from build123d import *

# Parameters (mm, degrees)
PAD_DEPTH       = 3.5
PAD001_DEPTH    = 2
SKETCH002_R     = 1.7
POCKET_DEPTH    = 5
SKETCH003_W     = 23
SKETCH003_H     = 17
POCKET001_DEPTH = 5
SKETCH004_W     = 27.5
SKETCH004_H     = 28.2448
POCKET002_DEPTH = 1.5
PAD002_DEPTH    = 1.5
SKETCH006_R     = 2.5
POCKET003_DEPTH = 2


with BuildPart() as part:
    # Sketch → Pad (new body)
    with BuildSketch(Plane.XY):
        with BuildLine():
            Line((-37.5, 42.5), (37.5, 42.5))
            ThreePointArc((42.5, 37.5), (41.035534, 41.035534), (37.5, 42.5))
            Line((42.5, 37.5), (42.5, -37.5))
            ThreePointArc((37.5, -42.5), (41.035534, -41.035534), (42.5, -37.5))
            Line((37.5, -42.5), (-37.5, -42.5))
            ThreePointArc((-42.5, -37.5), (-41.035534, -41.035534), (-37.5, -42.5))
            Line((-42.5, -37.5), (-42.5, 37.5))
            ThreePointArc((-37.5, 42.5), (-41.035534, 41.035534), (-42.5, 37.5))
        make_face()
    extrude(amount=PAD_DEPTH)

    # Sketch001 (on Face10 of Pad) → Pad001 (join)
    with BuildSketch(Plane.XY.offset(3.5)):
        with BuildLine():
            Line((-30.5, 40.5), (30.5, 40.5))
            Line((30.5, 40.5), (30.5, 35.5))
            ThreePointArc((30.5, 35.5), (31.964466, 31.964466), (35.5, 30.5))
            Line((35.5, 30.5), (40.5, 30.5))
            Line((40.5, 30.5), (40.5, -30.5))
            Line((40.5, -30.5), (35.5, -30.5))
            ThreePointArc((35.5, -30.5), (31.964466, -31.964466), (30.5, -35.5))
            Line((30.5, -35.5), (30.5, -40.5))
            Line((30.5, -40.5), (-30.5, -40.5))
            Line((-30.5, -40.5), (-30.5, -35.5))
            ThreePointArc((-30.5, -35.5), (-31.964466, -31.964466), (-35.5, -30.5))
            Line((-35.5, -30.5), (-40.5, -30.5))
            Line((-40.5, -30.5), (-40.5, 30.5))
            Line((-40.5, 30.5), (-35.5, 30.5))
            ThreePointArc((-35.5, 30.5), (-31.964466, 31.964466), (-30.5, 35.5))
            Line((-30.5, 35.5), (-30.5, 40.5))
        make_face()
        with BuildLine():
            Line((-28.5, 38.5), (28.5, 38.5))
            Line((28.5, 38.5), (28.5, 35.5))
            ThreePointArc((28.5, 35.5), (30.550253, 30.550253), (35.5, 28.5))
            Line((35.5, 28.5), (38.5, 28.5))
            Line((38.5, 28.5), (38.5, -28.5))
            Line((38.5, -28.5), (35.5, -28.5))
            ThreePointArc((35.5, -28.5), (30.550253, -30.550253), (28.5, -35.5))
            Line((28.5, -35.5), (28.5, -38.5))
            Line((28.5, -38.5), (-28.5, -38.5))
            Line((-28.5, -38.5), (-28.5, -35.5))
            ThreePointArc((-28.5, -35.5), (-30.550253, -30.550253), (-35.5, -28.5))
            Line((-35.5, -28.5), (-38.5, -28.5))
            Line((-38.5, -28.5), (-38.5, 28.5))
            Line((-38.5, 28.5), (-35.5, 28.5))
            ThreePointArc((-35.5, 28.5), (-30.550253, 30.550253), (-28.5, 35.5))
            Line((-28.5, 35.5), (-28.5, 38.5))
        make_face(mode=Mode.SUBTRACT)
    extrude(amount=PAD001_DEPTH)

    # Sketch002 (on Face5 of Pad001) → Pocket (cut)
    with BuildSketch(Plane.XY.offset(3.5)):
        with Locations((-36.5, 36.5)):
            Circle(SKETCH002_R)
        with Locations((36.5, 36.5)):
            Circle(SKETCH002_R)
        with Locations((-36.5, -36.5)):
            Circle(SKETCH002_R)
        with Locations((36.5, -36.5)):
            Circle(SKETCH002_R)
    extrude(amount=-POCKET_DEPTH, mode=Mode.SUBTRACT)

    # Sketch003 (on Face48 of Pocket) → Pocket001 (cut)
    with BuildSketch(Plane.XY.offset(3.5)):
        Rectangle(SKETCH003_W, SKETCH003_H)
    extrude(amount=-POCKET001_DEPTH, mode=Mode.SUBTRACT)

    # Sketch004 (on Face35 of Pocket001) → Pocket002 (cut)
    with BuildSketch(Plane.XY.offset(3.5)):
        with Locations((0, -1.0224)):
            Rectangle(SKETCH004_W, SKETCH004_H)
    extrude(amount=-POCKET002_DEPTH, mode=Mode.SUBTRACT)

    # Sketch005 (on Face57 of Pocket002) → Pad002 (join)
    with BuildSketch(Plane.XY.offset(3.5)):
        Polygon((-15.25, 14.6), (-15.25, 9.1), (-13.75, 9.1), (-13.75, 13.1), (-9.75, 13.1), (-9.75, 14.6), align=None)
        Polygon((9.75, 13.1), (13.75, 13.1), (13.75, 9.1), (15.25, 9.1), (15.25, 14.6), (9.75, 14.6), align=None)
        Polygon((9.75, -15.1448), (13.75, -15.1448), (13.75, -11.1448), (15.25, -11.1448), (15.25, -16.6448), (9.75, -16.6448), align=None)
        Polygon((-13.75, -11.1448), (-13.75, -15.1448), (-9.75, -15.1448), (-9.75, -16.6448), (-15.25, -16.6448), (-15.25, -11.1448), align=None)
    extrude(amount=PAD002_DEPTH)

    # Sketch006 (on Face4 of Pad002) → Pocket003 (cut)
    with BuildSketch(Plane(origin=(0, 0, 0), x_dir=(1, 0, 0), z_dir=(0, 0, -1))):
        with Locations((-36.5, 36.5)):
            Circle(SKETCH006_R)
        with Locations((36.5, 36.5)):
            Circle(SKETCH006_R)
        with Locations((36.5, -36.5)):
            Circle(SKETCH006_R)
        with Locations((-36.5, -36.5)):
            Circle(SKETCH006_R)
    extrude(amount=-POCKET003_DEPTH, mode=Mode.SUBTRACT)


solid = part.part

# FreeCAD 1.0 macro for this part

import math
import FreeCAD as App
import Part
import Sketcher

V = App.Vector

doc = App.newDocument("Part")
params = doc.addObject("Spreadsheet::Sheet", "Params")
for row, (alias, value) in enumerate([
    ("sketch1_radius", "5 mm"),
    ("sketch1_width", "75 mm"),
    ("pad1_length", "3.5 mm"),
    ("sketch2_radius", "5 mm"),
    ("sketch2_radius2", "7.000002 mm"),
    ("sketch2_width", "61 mm"),
    ("sketch2_width2", "5 mm"),
    ("sketch2_width3", "3 mm"),
    ("pad2_length", "2 mm"),
    ("sketch3_diameter", "3.4 mm"),
    ("pocket1_length", "5 mm"),
    ("sketch4_width", "23 mm"),
    ("sketch4_height", "17 mm"),
    ("pocket2_length", "5 mm"),
    ("sketch5_width", "27.5 mm"),
    ("pocket3_length", "1.5 mm"),
    ("sketch6_width", "4 mm"),
    ("sketch6_width2", "1.5 mm"),
    ("pad3_length", "1.5 mm"),
    ("sketch7_diameter", "5 mm"),
    ("pocket4_length", "2 mm"),
], start=1):
    params.set(f"A{row}", alias)
    params.set(f"B{row}", "=" + value)
    params.setAlias(f"B{row}", alias)

body = doc.addObject("PartDesign::Body", "Body")

sketch1 = body.newObject("Sketcher::SketchObject", "Sketch")
sketch1.AttachmentSupport = (doc.getObject("XY_Plane"), [""])
sketch1.MapMode = "FlatFace"
sketch1.addGeometry(Part.LineSegment(V(37.5, 42.5, 0), V(-37.5, 42.5, 0)), False)
sketch1.addGeometry(Part.ArcOfCircle(Part.Circle(V(-37.5, 37.5, 0), V(0, 0, 1), 5), math.radians(90), math.radians(180)), False)
sketch1.addGeometry(Part.LineSegment(V(-42.5, 37.5, 0), V(-42.5, -37.5, 0)), False)
sketch1.addGeometry(Part.ArcOfCircle(Part.Circle(V(-37.5, -37.5, 0), V(0, 0, 1), 5), math.radians(180), math.radians(270)), False)
sketch1.addGeometry(Part.LineSegment(V(-37.5, -42.5, 0), V(37.5, -42.5, 0)), False)
sketch1.addGeometry(Part.ArcOfCircle(Part.Circle(V(37.5, -37.5, 0), V(0, 0, 1), 5), math.radians(-90), math.radians(0)), False)
sketch1.addGeometry(Part.LineSegment(V(42.5, -37.5, 0), V(42.5, 37.5, 0)), False)
sketch1.addGeometry(Part.ArcOfCircle(Part.Circle(V(37.5, 37.5, 0), V(0, 0, 1), 5), math.radians(0), math.radians(90)), False)
sketch1.addConstraint(Sketcher.Constraint("Tangent", 0, 2, 1, 1))
sketch1.addConstraint(Sketcher.Constraint("Tangent", 1, 2, 2, 1))
sketch1.addConstraint(Sketcher.Constraint("Tangent", 2, 2, 3, 1))
sketch1.addConstraint(Sketcher.Constraint("Tangent", 3, 2, 4, 1))
sketch1.addConstraint(Sketcher.Constraint("Tangent", 4, 2, 5, 1))
sketch1.addConstraint(Sketcher.Constraint("Tangent", 5, 2, 6, 1))
sketch1.addConstraint(Sketcher.Constraint("Tangent", 6, 2, 7, 1))
sketch1.addConstraint(Sketcher.Constraint("Tangent", 7, 2, 0, 1))
sketch1.addConstraint(Sketcher.Constraint("Horizontal", 0))
sketch1.addConstraint(Sketcher.Constraint("Vertical", 2))
sketch1.addConstraint(Sketcher.Constraint("Horizontal", 4))
sketch1.addConstraint(Sketcher.Constraint("Vertical", 6))
sketch1.addConstraint(Sketcher.Constraint("Equal", 1, 3))
sketch1.addConstraint(Sketcher.Constraint("Equal", 3, 5))
sketch1.addConstraint(Sketcher.Constraint("Equal", 5, 7))
sketch1.addConstraint(Sketcher.Constraint("Symmetric", 1, 3, 5, 3, -1, 1))
sketch1.addConstraint(Sketcher.Constraint("Equal", 4, 2))
sketch1.addConstraint(Sketcher.Constraint("Radius", 1, 5.0))
sketch1.addConstraint(Sketcher.Constraint("DistanceX", 0, 2, 0, 1, 75.0))
sketch1.setExpression("Constraints[17]", "Params.sketch1_radius")
sketch1.setExpression("Constraints[18]", "Params.sketch1_width")
pad1 = body.newObject("PartDesign::Pad", "Pad")
pad1.Profile = sketch1
pad1.setExpression("Length", "Params.pad1_length")

sketch2 = body.newObject("Sketcher::SketchObject", "Sketch001")
sketch2.AttachmentSupport = (doc.getObject("XY_Plane"), [""])
sketch2.MapMode = "FlatFace"
sketch2.AttachmentOffset = App.Placement(V(0, 0, 3.5), App.Rotation())
sketch2.addGeometry(Part.LineSegment(V(30.5, 40.5, 0), V(-30.5, 40.5, 0)), False)
sketch2.addGeometry(Part.LineSegment(V(-30.5, 40.5, 0), V(-30.5, 35.5, 0)), False)
sketch2.addGeometry(Part.ArcOfCircle(Part.Circle(V(-35.5, 35.5, 0), V(0, 0, 1), 5), math.radians(-90), math.radians(0)), False)
sketch2.addGeometry(Part.LineSegment(V(-35.5, 30.5, 0), V(-40.5, 30.5, 0)), False)
sketch2.addGeometry(Part.LineSegment(V(-40.5, 30.5, 0), V(-40.5, -30.5, 0)), False)
sketch2.addGeometry(Part.LineSegment(V(-40.5, -30.5, 0), V(-35.5, -30.5, 0)), False)
sketch2.addGeometry(Part.ArcOfCircle(Part.Circle(V(-35.5, -35.5, 0), V(0, 0, 1), 5), math.radians(0), math.radians(90)), False)
sketch2.addGeometry(Part.LineSegment(V(-30.5, -35.5, 0), V(-30.5, -40.5, 0)), False)
sketch2.addGeometry(Part.LineSegment(V(-30.5, -40.5, 0), V(30.5, -40.5, 0)), False)
sketch2.addGeometry(Part.LineSegment(V(30.5, -40.5, 0), V(30.5, -35.5, 0)), False)
sketch2.addGeometry(Part.ArcOfCircle(Part.Circle(V(35.5, -35.5, 0), V(0, 0, 1), 5), math.radians(90), math.radians(180)), False)
sketch2.addGeometry(Part.LineSegment(V(35.5, -30.5, 0), V(40.5, -30.5, 0)), False)
sketch2.addGeometry(Part.LineSegment(V(40.5, -30.5, 0), V(40.5, 30.5, 0)), False)
sketch2.addGeometry(Part.LineSegment(V(40.5, 30.5, 0), V(35.5, 30.5, 0)), False)
sketch2.addGeometry(Part.ArcOfCircle(Part.Circle(V(35.5, 35.5, 0), V(0, 0, 1), 5), math.radians(180), math.radians(270)), False)
sketch2.addGeometry(Part.LineSegment(V(30.5, 35.5, 0), V(30.5, 40.5, 0)), False)
sketch2.addGeometry(Part.LineSegment(V(-28.5, 38.5, 0), V(28.5, 38.5, 0)), False)
sketch2.addGeometry(Part.LineSegment(V(28.5, 38.5, 0), V(28.5, 35.5, 0)), False)
sketch2.addGeometry(Part.ArcOfCircle(Part.Circle(V(35.5, 35.5, 0), V(0, 0, 1), 7), math.radians(-180), math.radians(-90)), False)
sketch2.addGeometry(Part.LineSegment(V(35.5, 28.5, 0), V(38.5, 28.5, 0)), False)
sketch2.addGeometry(Part.LineSegment(V(38.5, 28.5, 0), V(38.5, -28.5, 0)), False)
sketch2.addGeometry(Part.LineSegment(V(38.5, -28.5, 0), V(35.5, -28.5, 0)), False)
sketch2.addGeometry(Part.ArcOfCircle(Part.Circle(V(35.5, -35.5, 0), V(0, 0, 1), 7), math.radians(90), math.radians(180)), False)
sketch2.addGeometry(Part.LineSegment(V(28.5, -35.5, 0), V(28.5, -38.5, 0)), False)
sketch2.addGeometry(Part.LineSegment(V(28.5, -38.5, 0), V(-28.5, -38.5, 0)), False)
sketch2.addGeometry(Part.LineSegment(V(-28.5, -38.5, 0), V(-28.5, -35.5, 0)), False)
sketch2.addGeometry(Part.ArcOfCircle(Part.Circle(V(-35.5, -35.5, 0), V(0, 0, 1), 7), math.radians(0), math.radians(90)), False)
sketch2.addGeometry(Part.LineSegment(V(-35.5, -28.5, 0), V(-38.5, -28.5, 0)), False)
sketch2.addGeometry(Part.LineSegment(V(-38.5, -28.5, 0), V(-38.5, 28.5, 0)), False)
sketch2.addGeometry(Part.LineSegment(V(-38.5, 28.5, 0), V(-35.5, 28.5, 0)), False)
sketch2.addGeometry(Part.ArcOfCircle(Part.Circle(V(-35.5, 35.5, 0), V(0, 0, 1), 7), math.radians(-90), math.radians(0)), False)
sketch2.addGeometry(Part.LineSegment(V(-28.5, 35.5, 0), V(-28.5, 38.5, 0)), False)
sketch2.addConstraint(Sketcher.Constraint("Coincident", 0, 2, 1, 1))
sketch2.addConstraint(Sketcher.Constraint("Tangent", 1, 2, 2, 2))
sketch2.addConstraint(Sketcher.Constraint("Tangent", 2, 1, 3, 1))
sketch2.addConstraint(Sketcher.Constraint("Coincident", 3, 2, 4, 1))
sketch2.addConstraint(Sketcher.Constraint("Coincident", 4, 2, 5, 1))
sketch2.addConstraint(Sketcher.Constraint("Tangent", 5, 2, 6, 2))
sketch2.addConstraint(Sketcher.Constraint("Tangent", 6, 1, 7, 1))
sketch2.addConstraint(Sketcher.Constraint("Coincident", 7, 2, 8, 1))
sketch2.addConstraint(Sketcher.Constraint("Coincident", 8, 2, 9, 1))
sketch2.addConstraint(Sketcher.Constraint("Tangent", 9, 2, 10, 2))
sketch2.addConstraint(Sketcher.Constraint("Tangent", 10, 1, 11, 1))
sketch2.addConstraint(Sketcher.Constraint("Coincident", 11, 2, 12, 1))
sketch2.addConstraint(Sketcher.Constraint("Coincident", 12, 2, 13, 1))
sketch2.addConstraint(Sketcher.Constraint("Tangent", 13, 2, 14, 2))
sketch2.addConstraint(Sketcher.Constraint("Tangent", 14, 1, 15, 1))
sketch2.addConstraint(Sketcher.Constraint("Coincident", 15, 2, 0, 1))
sketch2.addConstraint(Sketcher.Constraint("Coincident", 16, 2, 17, 1))
sketch2.addConstraint(Sketcher.Constraint("Tangent", 17, 2, 18, 1))
sketch2.addConstraint(Sketcher.Constraint("Tangent", 18, 2, 19, 1))
sketch2.addConstraint(Sketcher.Constraint("Coincident", 19, 2, 20, 1))
sketch2.addConstraint(Sketcher.Constraint("Coincident", 20, 2, 21, 1))
sketch2.addConstraint(Sketcher.Constraint("Tangent", 21, 2, 22, 1))
sketch2.addConstraint(Sketcher.Constraint("Tangent", 22, 2, 23, 1))
sketch2.addConstraint(Sketcher.Constraint("Coincident", 23, 2, 24, 1))
sketch2.addConstraint(Sketcher.Constraint("Coincident", 24, 2, 25, 1))
sketch2.addConstraint(Sketcher.Constraint("Tangent", 25, 2, 26, 1))
sketch2.addConstraint(Sketcher.Constraint("Tangent", 26, 2, 27, 1))
sketch2.addConstraint(Sketcher.Constraint("Coincident", 27, 2, 28, 1))
sketch2.addConstraint(Sketcher.Constraint("Coincident", 28, 2, 29, 1))
sketch2.addConstraint(Sketcher.Constraint("Tangent", 29, 2, 30, 1))
sketch2.addConstraint(Sketcher.Constraint("Tangent", 30, 2, 31, 1))
sketch2.addConstraint(Sketcher.Constraint("Coincident", 31, 2, 16, 1))
sketch2.addConstraint(Sketcher.Constraint("Horizontal", 0))
sketch2.addConstraint(Sketcher.Constraint("Vertical", 1))
sketch2.addConstraint(Sketcher.Constraint("Horizontal", 3))
sketch2.addConstraint(Sketcher.Constraint("Vertical", 4))
sketch2.addConstraint(Sketcher.Constraint("Horizontal", 5))
sketch2.addConstraint(Sketcher.Constraint("Vertical", 7))
sketch2.addConstraint(Sketcher.Constraint("Horizontal", 8))
sketch2.addConstraint(Sketcher.Constraint("Vertical", 9))
sketch2.addConstraint(Sketcher.Constraint("Horizontal", 11))
sketch2.addConstraint(Sketcher.Constraint("Vertical", 12))
sketch2.addConstraint(Sketcher.Constraint("Horizontal", 13))
sketch2.addConstraint(Sketcher.Constraint("Vertical", 15))
sketch2.addConstraint(Sketcher.Constraint("Horizontal", 16))
sketch2.addConstraint(Sketcher.Constraint("Vertical", 17))
sketch2.addConstraint(Sketcher.Constraint("Horizontal", 19))
sketch2.addConstraint(Sketcher.Constraint("Vertical", 20))
sketch2.addConstraint(Sketcher.Constraint("Horizontal", 21))
sketch2.addConstraint(Sketcher.Constraint("Vertical", 23))
sketch2.addConstraint(Sketcher.Constraint("Horizontal", 24))
sketch2.addConstraint(Sketcher.Constraint("Vertical", 25))
sketch2.addConstraint(Sketcher.Constraint("Horizontal", 27))
sketch2.addConstraint(Sketcher.Constraint("Vertical", 28))
sketch2.addConstraint(Sketcher.Constraint("Horizontal", 29))
sketch2.addConstraint(Sketcher.Constraint("Vertical", 31))
sketch2.addConstraint(Sketcher.Constraint("Coincident", 18, 3, 14, 3))
sketch2.addConstraint(Sketcher.Constraint("Coincident", 22, 3, 10, 3))
sketch2.addConstraint(Sketcher.Constraint("Coincident", 26, 3, 6, 3))
sketch2.addConstraint(Sketcher.Constraint("Coincident", 30, 3, 2, 3))
sketch2.addConstraint(Sketcher.Constraint("Equal", 2, 6))
sketch2.addConstraint(Sketcher.Constraint("Equal", 6, 10))
sketch2.addConstraint(Sketcher.Constraint("Equal", 10, 14))
sketch2.addConstraint(Sketcher.Constraint("Equal", 18, 22))
sketch2.addConstraint(Sketcher.Constraint("Equal", 22, 26))
sketch2.addConstraint(Sketcher.Constraint("Equal", 26, 30))
sketch2.addConstraint(Sketcher.Constraint("Symmetric", 2, 3, 10, 3, -1, 1))
sketch2.addConstraint(Sketcher.Constraint("Symmetric", 6, 3, 14, 3, -1, 1))
sketch2.addConstraint(Sketcher.Constraint("Symmetric", 6, 3, 10, 3, -2))
sketch2.addConstraint(Sketcher.Constraint("Equal", 5, 11))
sketch2.addConstraint(Sketcher.Constraint("Equal", 21, 27))
sketch2.addConstraint(Sketcher.Constraint("Equal", 13, 1))
sketch2.addConstraint(Sketcher.Constraint("Equal", 8, 4))
sketch2.addConstraint(Sketcher.Constraint("Equal", 1, 7))
sketch2.addConstraint(Sketcher.Constraint("Equal", 29, 17))
sketch2.addConstraint(Sketcher.Constraint("Equal", 17, 23))
sketch2.addConstraint(Sketcher.Constraint("Radius", 2, 5.0))
sketch2.addConstraint(Sketcher.Constraint("Radius", 18, 7.000002))
sketch2.addConstraint(Sketcher.Constraint("DistanceX", 0, 2, 0, 1, 61.0))
sketch2.addConstraint(Sketcher.Constraint("DistanceX", 3, 2, 3, 1, 5.0))
sketch2.addConstraint(Sketcher.Constraint("DistanceX", 19, 1, 19, 2, 3.0))
sketch2.setExpression("Constraints[76]", "Params.sketch2_radius")
sketch2.setExpression("Constraints[77]", "Params.sketch2_radius2")
sketch2.setExpression("Constraints[78]", "Params.sketch2_width")
sketch2.setExpression("Constraints[79]", "Params.sketch2_width2")
sketch2.setExpression("Constraints[80]", "Params.sketch2_width3")
pad2 = body.newObject("PartDesign::Pad", "Pad001")
pad2.Profile = sketch2
pad2.setExpression("Length", "Params.pad2_length")

sketch3 = body.newObject("Sketcher::SketchObject", "Sketch002")
sketch3.AttachmentSupport = (doc.getObject("XY_Plane"), [""])
sketch3.MapMode = "FlatFace"
sketch3.AttachmentOffset = App.Placement(V(0, 0, 3.5), App.Rotation())
sketch3.addGeometry(Part.Circle(V(-36.5, 36.5, 0), V(0, 0, 1), 1.7), False)
sketch3.addGeometry(Part.Circle(V(36.5, 36.5, 0), V(0, 0, 1), 1.7), False)
sketch3.addGeometry(Part.Circle(V(-36.5, -36.5, 0), V(0, 0, 1), 1.7), False)
sketch3.addGeometry(Part.Circle(V(36.5, -36.5, 0), V(0, 0, 1), 1.7), False)
sketch3.addConstraint(Sketcher.Constraint("Equal", 0, 1))
sketch3.addConstraint(Sketcher.Constraint("Equal", 1, 2))
sketch3.addConstraint(Sketcher.Constraint("Equal", 2, 3))
sketch3.addConstraint(Sketcher.Constraint("Symmetric", 1, 3, 2, 3, -1, 1))
sketch3.addConstraint(Sketcher.Constraint("Symmetric", 0, 3, 3, 3, -1, 1))
sketch3.addConstraint(Sketcher.Constraint("Symmetric", 0, 3, 1, 3, -2))
sketch3.addConstraint(Sketcher.Constraint("Diameter", 0, 3.4))
sketch3.addConstraint(Sketcher.Constraint("DistanceX", 0, 3, 1, 3, 73.0))
sketch3.addConstraint(Sketcher.Constraint("DistanceY", 2, 3, 0, 3, 73.0))
sketch3.setExpression("Constraints[6]", "Params.sketch3_diameter")
pocket1 = body.newObject("PartDesign::Pocket", "Pocket")
pocket1.Profile = sketch3
pocket1.setExpression("Length", "Params.pocket1_length")

sketch4 = body.newObject("Sketcher::SketchObject", "Sketch003")
sketch4.AttachmentSupport = (doc.getObject("XY_Plane"), [""])
sketch4.MapMode = "FlatFace"
sketch4.AttachmentOffset = App.Placement(V(0, 0, 3.5), App.Rotation())
sketch4.addGeometry(Part.LineSegment(V(-12, 8, 0), V(-12, -8, 0)), False)
sketch4.addGeometry(Part.LineSegment(V(-12, -8, 0), V(12, -8, 0)), False)
sketch4.addGeometry(Part.LineSegment(V(12, -8, 0), V(12, 8, 0)), False)
sketch4.addGeometry(Part.LineSegment(V(12, 8, 0), V(-12, 8, 0)), False)
sketch4.addConstraint(Sketcher.Constraint("Coincident", 0, 2, 1, 1))
sketch4.addConstraint(Sketcher.Constraint("Coincident", 1, 2, 2, 1))
sketch4.addConstraint(Sketcher.Constraint("Coincident", 2, 2, 3, 1))
sketch4.addConstraint(Sketcher.Constraint("Coincident", 3, 2, 0, 1))
sketch4.addConstraint(Sketcher.Constraint("Vertical", 0))
sketch4.addConstraint(Sketcher.Constraint("Horizontal", 1))
sketch4.addConstraint(Sketcher.Constraint("Vertical", 2))
sketch4.addConstraint(Sketcher.Constraint("Horizontal", 3))
sketch4.addConstraint(Sketcher.Constraint("Symmetric", 0, 2, 2, 2, -1, 1))
sketch4.addConstraint(Sketcher.Constraint("DistanceX", 1, 1, 1, 2, 23.0))
sketch4.addConstraint(Sketcher.Constraint("DistanceY", 0, 2, 0, 1, 17.0))
sketch4.setExpression("Constraints[9]", "Params.sketch4_width")
sketch4.setExpression("Constraints[10]", "Params.sketch4_height")
pocket2 = body.newObject("PartDesign::Pocket", "Pocket001")
pocket2.Profile = sketch4
pocket2.setExpression("Length", "Params.pocket2_length")

sketch5 = body.newObject("Sketcher::SketchObject", "Sketch004")
sketch5.AttachmentSupport = (doc.getObject("XY_Plane"), [""])
sketch5.MapMode = "FlatFace"
sketch5.AttachmentOffset = App.Placement(V(0, 0, 3.5), App.Rotation())
sketch5.addGeometry(Part.LineSegment(V(-14, 13, 0), V(-14, -15, 0)), False)
sketch5.addGeometry(Part.LineSegment(V(-14, -15, 0), V(14, -15, 0)), False)
sketch5.addGeometry(Part.LineSegment(V(14, -15, 0), V(14, 13, 0)), False)
sketch5.addGeometry(Part.LineSegment(V(14, 13, 0), V(-14, 13, 0)), False)
sketch5.addConstraint(Sketcher.Constraint("Coincident", 0, 2, 1, 1))
sketch5.addConstraint(Sketcher.Constraint("Coincident", 1, 2, 2, 1))
sketch5.addConstraint(Sketcher.Constraint("Coincident", 2, 2, 3, 1))
sketch5.addConstraint(Sketcher.Constraint("Coincident", 3, 2, 0, 1))
sketch5.addConstraint(Sketcher.Constraint("Vertical", 0))
sketch5.addConstraint(Sketcher.Constraint("Horizontal", 1))
sketch5.addConstraint(Sketcher.Constraint("Vertical", 2))
sketch5.addConstraint(Sketcher.Constraint("Horizontal", 3))
sketch5.addConstraint(Sketcher.Constraint("DistanceX", 1, 1, 1, 2, 27.5))
sketch5.addConstraint(Sketcher.Constraint("DistanceY", -1, 1, 2, 2, 13.1))
sketch5.addConstraint(Sketcher.Constraint("DistanceX", 0, 2, -1, 1, 13.75))
sketch5.addConstraint(Sketcher.Constraint("DistanceY", 0, 2, 0, 1, 28.2448))
sketch5.setExpression("Constraints[8]", "Params.sketch5_width")
pocket3 = body.newObject("PartDesign::Pocket", "Pocket002")
pocket3.Profile = sketch5
pocket3.setExpression("Length", "Params.pocket3_length")

sketch6 = body.newObject("Sketcher::SketchObject", "Sketch005")
sketch6.AttachmentSupport = (doc.getObject("XY_Plane"), [""])
sketch6.MapMode = "FlatFace"
sketch6.AttachmentOffset = App.Placement(V(0, 0, 3.5), App.Rotation())
sketch6.addGeometry(Part.LineSegment(V(-15.2, 14.6, 0), V(-15.2, 9.1, 0)), False)
sketch6.addGeometry(Part.LineSegment(V(-15.2, 9.1, 0), V(-13.8, 9.1, 0)), False)
sketch6.addGeometry(Part.LineSegment(V(-13.8, 9.1, 0), V(-13.8, 13.1, 0)), False)
sketch6.addGeometry(Part.LineSegment(V(-13.8, 13.1, 0), V(-9.8, 13.1, 0)), False)
sketch6.addGeometry(Part.LineSegment(V(-9.8, 13.1, 0), V(-9.8, 14.6, 0)), False)
sketch6.addGeometry(Part.LineSegment(V(-9.8, 14.6, 0), V(-15.2, 14.6, 0)), False)
sketch6.addGeometry(Part.LineSegment(V(9.8, 13.1, 0), V(13.8, 13.1, 0)), False)
sketch6.addGeometry(Part.LineSegment(V(13.8, 13.1, 0), V(13.8, 9.1, 0)), False)
sketch6.addGeometry(Part.LineSegment(V(13.8, 9.1, 0), V(15.2, 9.1, 0)), False)
sketch6.addGeometry(Part.LineSegment(V(15.2, 9.1, 0), V(15.2, 14.6, 0)), False)
sketch6.addGeometry(Part.LineSegment(V(15.2, 14.6, 0), V(9.8, 14.6, 0)), False)
sketch6.addGeometry(Part.LineSegment(V(9.8, 14.6, 0), V(9.8, 13.1, 0)), False)
sketch6.addGeometry(Part.LineSegment(V(13.8, -15.1, 0), V(9.8, -15.1, 0)), False)
sketch6.addGeometry(Part.LineSegment(V(9.8, -15.1, 0), V(9.8, -16.6, 0)), False)
sketch6.addGeometry(Part.LineSegment(V(9.8, -16.6, 0), V(15.2, -16.6, 0)), False)
sketch6.addGeometry(Part.LineSegment(V(15.2, -16.6, 0), V(15.2, -11.1, 0)), False)
sketch6.addGeometry(Part.LineSegment(V(15.2, -11.1, 0), V(13.8, -11.1, 0)), False)
sketch6.addGeometry(Part.LineSegment(V(13.8, -11.1, 0), V(13.8, -15.1, 0)), False)
sketch6.addGeometry(Part.LineSegment(V(-13.8, -15.1, 0), V(-13.8, -11.1, 0)), False)
sketch6.addGeometry(Part.LineSegment(V(-13.8, -11.1, 0), V(-15.2, -11.1, 0)), False)
sketch6.addGeometry(Part.LineSegment(V(-15.2, -11.1, 0), V(-15.2, -16.6, 0)), False)
sketch6.addGeometry(Part.LineSegment(V(-15.2, -16.6, 0), V(-9.8, -16.6, 0)), False)
sketch6.addGeometry(Part.LineSegment(V(-9.8, -16.6, 0), V(-9.8, -15.1, 0)), False)
sketch6.addGeometry(Part.LineSegment(V(-9.8, -15.1, 0), V(-13.8, -15.1, 0)), False)
sketch6.addConstraint(Sketcher.Constraint("Coincident", 0, 2, 1, 1))
sketch6.addConstraint(Sketcher.Constraint("Coincident", 1, 2, 2, 1))
sketch6.addConstraint(Sketcher.Constraint("Coincident", 2, 2, 3, 1))
sketch6.addConstraint(Sketcher.Constraint("Coincident", 3, 2, 4, 1))
sketch6.addConstraint(Sketcher.Constraint("Coincident", 4, 2, 5, 1))
sketch6.addConstraint(Sketcher.Constraint("Coincident", 5, 2, 0, 1))
sketch6.addConstraint(Sketcher.Constraint("Coincident", 6, 2, 7, 1))
sketch6.addConstraint(Sketcher.Constraint("Coincident", 7, 2, 8, 1))
sketch6.addConstraint(Sketcher.Constraint("Coincident", 8, 2, 9, 1))
sketch6.addConstraint(Sketcher.Constraint("Coincident", 9, 2, 10, 1))
sketch6.addConstraint(Sketcher.Constraint("Coincident", 10, 2, 11, 1))
sketch6.addConstraint(Sketcher.Constraint("Coincident", 11, 2, 6, 1))
sketch6.addConstraint(Sketcher.Constraint("Coincident", 12, 2, 13, 1))
sketch6.addConstraint(Sketcher.Constraint("Coincident", 13, 2, 14, 1))
sketch6.addConstraint(Sketcher.Constraint("Coincident", 14, 2, 15, 1))
sketch6.addConstraint(Sketcher.Constraint("Coincident", 15, 2, 16, 1))
sketch6.addConstraint(Sketcher.Constraint("Coincident", 16, 2, 17, 1))
sketch6.addConstraint(Sketcher.Constraint("Coincident", 17, 2, 12, 1))
sketch6.addConstraint(Sketcher.Constraint("Coincident", 18, 2, 19, 1))
sketch6.addConstraint(Sketcher.Constraint("Coincident", 19, 2, 20, 1))
sketch6.addConstraint(Sketcher.Constraint("Coincident", 20, 2, 21, 1))
sketch6.addConstraint(Sketcher.Constraint("Coincident", 21, 2, 22, 1))
sketch6.addConstraint(Sketcher.Constraint("Coincident", 22, 2, 23, 1))
sketch6.addConstraint(Sketcher.Constraint("Coincident", 23, 2, 18, 1))
sketch6.addConstraint(Sketcher.Constraint("Vertical", 0))
sketch6.addConstraint(Sketcher.Constraint("Horizontal", 1))
sketch6.addConstraint(Sketcher.Constraint("Vertical", 2))
sketch6.addConstraint(Sketcher.Constraint("Horizontal", 3))
sketch6.addConstraint(Sketcher.Constraint("Vertical", 4))
sketch6.addConstraint(Sketcher.Constraint("Horizontal", 5))
sketch6.addConstraint(Sketcher.Constraint("Horizontal", 6))
sketch6.addConstraint(Sketcher.Constraint("Vertical", 7))
sketch6.addConstraint(Sketcher.Constraint("Horizontal", 8))
sketch6.addConstraint(Sketcher.Constraint("Vertical", 9))
sketch6.addConstraint(Sketcher.Constraint("Horizontal", 10))
sketch6.addConstraint(Sketcher.Constraint("Vertical", 11))
sketch6.addConstraint(Sketcher.Constraint("Horizontal", 12))
sketch6.addConstraint(Sketcher.Constraint("Vertical", 13))
sketch6.addConstraint(Sketcher.Constraint("Horizontal", 14))
sketch6.addConstraint(Sketcher.Constraint("Vertical", 15))
sketch6.addConstraint(Sketcher.Constraint("Horizontal", 16))
sketch6.addConstraint(Sketcher.Constraint("Vertical", 17))
sketch6.addConstraint(Sketcher.Constraint("Vertical", 18))
sketch6.addConstraint(Sketcher.Constraint("Horizontal", 19))
sketch6.addConstraint(Sketcher.Constraint("Vertical", 20))
sketch6.addConstraint(Sketcher.Constraint("Horizontal", 21))
sketch6.addConstraint(Sketcher.Constraint("Vertical", 22))
sketch6.addConstraint(Sketcher.Constraint("Horizontal", 23))
sketch6.addConstraint(Sketcher.Constraint("Symmetric", 2, 2, 6, 2, -2))
sketch6.addConstraint(Sketcher.Constraint("Symmetric", 0, 2, 8, 2, -2))
sketch6.addConstraint(Sketcher.Constraint("Symmetric", 4, 2, 10, 2, -2))
sketch6.addConstraint(Sketcher.Constraint("Symmetric", 16, 2, 18, 2, -2))
sketch6.addConstraint(Sketcher.Constraint("Symmetric", 14, 2, 20, 2, -2))
sketch6.addConstraint(Sketcher.Constraint("Symmetric", 12, 2, 22, 2, -2))
sketch6.addConstraint(Sketcher.Constraint("Vertical", 11, 2, 12, 2))
sketch6.addConstraint(Sketcher.Constraint("Vertical", 9, 2, 14, 2))
sketch6.addConstraint(Sketcher.Constraint("Vertical", 7, 2, 16, 2))
sketch6.addConstraint(Sketcher.Constraint("Equal", 21, 0))
sketch6.addConstraint(Sketcher.Constraint("Equal", 23, 2))
sketch6.addConstraint(Sketcher.Constraint("Equal", 11, 13))
sketch6.addConstraint(Sketcher.Constraint("Equal", 9, 15))
sketch6.addConstraint(Sketcher.Constraint("DistanceX", 3, 1, 3, 2, 4.0))
sketch6.addConstraint(Sketcher.Constraint("DistanceX", 1, 1, 1, 2, 1.5))
sketch6.addConstraint(Sketcher.Constraint("DistanceX", 5, 2, 6, 2, 29.0))
sketch6.addConstraint(Sketcher.Constraint("DistanceY", -1, 1, 0, 2, 9.1))
sketch6.addConstraint(Sketcher.Constraint("DistanceY", 12, 2, -1, 1, 15.1448))
sketch6.setExpression("Constraints[61]", "Params.sketch6_width")
sketch6.setExpression("Constraints[62]", "Params.sketch6_width2")
pad3 = body.newObject("PartDesign::Pad", "Pad002")
pad3.Profile = sketch6
pad3.setExpression("Length", "Params.pad3_length")

sketch7 = body.newObject("Sketcher::SketchObject", "Sketch006")
sketch7.AttachmentSupport = (doc.getObject("XY_Plane"), [""])
sketch7.MapMode = "FlatFace"
sketch7.addGeometry(Part.Circle(V(-36.5, -36.5, 0), V(0, 0, 1), 2.5), False)
sketch7.addGeometry(Part.Circle(V(36.5, -36.5, 0), V(0, 0, 1), 2.5), False)
sketch7.addGeometry(Part.Circle(V(36.5, 36.5, 0), V(0, 0, 1), 2.5), False)
sketch7.addGeometry(Part.Circle(V(-36.5, 36.5, 0), V(0, 0, 1), 2.5), False)
sketch7.addConstraint(Sketcher.Constraint("Equal", 0, 1))
sketch7.addConstraint(Sketcher.Constraint("Equal", 1, 2))
sketch7.addConstraint(Sketcher.Constraint("Equal", 2, 3))
sketch7.addConstraint(Sketcher.Constraint("Symmetric", 0, 3, 2, 3, -1, 1))
sketch7.addConstraint(Sketcher.Constraint("Symmetric", 1, 3, 3, 3, -1, 1))
sketch7.addConstraint(Sketcher.Constraint("Symmetric", 0, 3, 1, 3, -2))
sketch7.addConstraint(Sketcher.Constraint("Diameter", 0, 5.0))
sketch7.addConstraint(Sketcher.Constraint("DistanceX", 0, 3, 1, 3, 73.0))
sketch7.addConstraint(Sketcher.Constraint("DistanceY", 1, 3, 2, 3, 73.0))
sketch7.setExpression("Constraints[6]", "Params.sketch7_diameter")
pocket4 = body.newObject("PartDesign::Pocket", "Pocket003")
pocket4.Profile = sketch7
pocket4.setExpression("Length", "Params.pocket4_length")
pocket4.Reversed = True

doc.recompute()
